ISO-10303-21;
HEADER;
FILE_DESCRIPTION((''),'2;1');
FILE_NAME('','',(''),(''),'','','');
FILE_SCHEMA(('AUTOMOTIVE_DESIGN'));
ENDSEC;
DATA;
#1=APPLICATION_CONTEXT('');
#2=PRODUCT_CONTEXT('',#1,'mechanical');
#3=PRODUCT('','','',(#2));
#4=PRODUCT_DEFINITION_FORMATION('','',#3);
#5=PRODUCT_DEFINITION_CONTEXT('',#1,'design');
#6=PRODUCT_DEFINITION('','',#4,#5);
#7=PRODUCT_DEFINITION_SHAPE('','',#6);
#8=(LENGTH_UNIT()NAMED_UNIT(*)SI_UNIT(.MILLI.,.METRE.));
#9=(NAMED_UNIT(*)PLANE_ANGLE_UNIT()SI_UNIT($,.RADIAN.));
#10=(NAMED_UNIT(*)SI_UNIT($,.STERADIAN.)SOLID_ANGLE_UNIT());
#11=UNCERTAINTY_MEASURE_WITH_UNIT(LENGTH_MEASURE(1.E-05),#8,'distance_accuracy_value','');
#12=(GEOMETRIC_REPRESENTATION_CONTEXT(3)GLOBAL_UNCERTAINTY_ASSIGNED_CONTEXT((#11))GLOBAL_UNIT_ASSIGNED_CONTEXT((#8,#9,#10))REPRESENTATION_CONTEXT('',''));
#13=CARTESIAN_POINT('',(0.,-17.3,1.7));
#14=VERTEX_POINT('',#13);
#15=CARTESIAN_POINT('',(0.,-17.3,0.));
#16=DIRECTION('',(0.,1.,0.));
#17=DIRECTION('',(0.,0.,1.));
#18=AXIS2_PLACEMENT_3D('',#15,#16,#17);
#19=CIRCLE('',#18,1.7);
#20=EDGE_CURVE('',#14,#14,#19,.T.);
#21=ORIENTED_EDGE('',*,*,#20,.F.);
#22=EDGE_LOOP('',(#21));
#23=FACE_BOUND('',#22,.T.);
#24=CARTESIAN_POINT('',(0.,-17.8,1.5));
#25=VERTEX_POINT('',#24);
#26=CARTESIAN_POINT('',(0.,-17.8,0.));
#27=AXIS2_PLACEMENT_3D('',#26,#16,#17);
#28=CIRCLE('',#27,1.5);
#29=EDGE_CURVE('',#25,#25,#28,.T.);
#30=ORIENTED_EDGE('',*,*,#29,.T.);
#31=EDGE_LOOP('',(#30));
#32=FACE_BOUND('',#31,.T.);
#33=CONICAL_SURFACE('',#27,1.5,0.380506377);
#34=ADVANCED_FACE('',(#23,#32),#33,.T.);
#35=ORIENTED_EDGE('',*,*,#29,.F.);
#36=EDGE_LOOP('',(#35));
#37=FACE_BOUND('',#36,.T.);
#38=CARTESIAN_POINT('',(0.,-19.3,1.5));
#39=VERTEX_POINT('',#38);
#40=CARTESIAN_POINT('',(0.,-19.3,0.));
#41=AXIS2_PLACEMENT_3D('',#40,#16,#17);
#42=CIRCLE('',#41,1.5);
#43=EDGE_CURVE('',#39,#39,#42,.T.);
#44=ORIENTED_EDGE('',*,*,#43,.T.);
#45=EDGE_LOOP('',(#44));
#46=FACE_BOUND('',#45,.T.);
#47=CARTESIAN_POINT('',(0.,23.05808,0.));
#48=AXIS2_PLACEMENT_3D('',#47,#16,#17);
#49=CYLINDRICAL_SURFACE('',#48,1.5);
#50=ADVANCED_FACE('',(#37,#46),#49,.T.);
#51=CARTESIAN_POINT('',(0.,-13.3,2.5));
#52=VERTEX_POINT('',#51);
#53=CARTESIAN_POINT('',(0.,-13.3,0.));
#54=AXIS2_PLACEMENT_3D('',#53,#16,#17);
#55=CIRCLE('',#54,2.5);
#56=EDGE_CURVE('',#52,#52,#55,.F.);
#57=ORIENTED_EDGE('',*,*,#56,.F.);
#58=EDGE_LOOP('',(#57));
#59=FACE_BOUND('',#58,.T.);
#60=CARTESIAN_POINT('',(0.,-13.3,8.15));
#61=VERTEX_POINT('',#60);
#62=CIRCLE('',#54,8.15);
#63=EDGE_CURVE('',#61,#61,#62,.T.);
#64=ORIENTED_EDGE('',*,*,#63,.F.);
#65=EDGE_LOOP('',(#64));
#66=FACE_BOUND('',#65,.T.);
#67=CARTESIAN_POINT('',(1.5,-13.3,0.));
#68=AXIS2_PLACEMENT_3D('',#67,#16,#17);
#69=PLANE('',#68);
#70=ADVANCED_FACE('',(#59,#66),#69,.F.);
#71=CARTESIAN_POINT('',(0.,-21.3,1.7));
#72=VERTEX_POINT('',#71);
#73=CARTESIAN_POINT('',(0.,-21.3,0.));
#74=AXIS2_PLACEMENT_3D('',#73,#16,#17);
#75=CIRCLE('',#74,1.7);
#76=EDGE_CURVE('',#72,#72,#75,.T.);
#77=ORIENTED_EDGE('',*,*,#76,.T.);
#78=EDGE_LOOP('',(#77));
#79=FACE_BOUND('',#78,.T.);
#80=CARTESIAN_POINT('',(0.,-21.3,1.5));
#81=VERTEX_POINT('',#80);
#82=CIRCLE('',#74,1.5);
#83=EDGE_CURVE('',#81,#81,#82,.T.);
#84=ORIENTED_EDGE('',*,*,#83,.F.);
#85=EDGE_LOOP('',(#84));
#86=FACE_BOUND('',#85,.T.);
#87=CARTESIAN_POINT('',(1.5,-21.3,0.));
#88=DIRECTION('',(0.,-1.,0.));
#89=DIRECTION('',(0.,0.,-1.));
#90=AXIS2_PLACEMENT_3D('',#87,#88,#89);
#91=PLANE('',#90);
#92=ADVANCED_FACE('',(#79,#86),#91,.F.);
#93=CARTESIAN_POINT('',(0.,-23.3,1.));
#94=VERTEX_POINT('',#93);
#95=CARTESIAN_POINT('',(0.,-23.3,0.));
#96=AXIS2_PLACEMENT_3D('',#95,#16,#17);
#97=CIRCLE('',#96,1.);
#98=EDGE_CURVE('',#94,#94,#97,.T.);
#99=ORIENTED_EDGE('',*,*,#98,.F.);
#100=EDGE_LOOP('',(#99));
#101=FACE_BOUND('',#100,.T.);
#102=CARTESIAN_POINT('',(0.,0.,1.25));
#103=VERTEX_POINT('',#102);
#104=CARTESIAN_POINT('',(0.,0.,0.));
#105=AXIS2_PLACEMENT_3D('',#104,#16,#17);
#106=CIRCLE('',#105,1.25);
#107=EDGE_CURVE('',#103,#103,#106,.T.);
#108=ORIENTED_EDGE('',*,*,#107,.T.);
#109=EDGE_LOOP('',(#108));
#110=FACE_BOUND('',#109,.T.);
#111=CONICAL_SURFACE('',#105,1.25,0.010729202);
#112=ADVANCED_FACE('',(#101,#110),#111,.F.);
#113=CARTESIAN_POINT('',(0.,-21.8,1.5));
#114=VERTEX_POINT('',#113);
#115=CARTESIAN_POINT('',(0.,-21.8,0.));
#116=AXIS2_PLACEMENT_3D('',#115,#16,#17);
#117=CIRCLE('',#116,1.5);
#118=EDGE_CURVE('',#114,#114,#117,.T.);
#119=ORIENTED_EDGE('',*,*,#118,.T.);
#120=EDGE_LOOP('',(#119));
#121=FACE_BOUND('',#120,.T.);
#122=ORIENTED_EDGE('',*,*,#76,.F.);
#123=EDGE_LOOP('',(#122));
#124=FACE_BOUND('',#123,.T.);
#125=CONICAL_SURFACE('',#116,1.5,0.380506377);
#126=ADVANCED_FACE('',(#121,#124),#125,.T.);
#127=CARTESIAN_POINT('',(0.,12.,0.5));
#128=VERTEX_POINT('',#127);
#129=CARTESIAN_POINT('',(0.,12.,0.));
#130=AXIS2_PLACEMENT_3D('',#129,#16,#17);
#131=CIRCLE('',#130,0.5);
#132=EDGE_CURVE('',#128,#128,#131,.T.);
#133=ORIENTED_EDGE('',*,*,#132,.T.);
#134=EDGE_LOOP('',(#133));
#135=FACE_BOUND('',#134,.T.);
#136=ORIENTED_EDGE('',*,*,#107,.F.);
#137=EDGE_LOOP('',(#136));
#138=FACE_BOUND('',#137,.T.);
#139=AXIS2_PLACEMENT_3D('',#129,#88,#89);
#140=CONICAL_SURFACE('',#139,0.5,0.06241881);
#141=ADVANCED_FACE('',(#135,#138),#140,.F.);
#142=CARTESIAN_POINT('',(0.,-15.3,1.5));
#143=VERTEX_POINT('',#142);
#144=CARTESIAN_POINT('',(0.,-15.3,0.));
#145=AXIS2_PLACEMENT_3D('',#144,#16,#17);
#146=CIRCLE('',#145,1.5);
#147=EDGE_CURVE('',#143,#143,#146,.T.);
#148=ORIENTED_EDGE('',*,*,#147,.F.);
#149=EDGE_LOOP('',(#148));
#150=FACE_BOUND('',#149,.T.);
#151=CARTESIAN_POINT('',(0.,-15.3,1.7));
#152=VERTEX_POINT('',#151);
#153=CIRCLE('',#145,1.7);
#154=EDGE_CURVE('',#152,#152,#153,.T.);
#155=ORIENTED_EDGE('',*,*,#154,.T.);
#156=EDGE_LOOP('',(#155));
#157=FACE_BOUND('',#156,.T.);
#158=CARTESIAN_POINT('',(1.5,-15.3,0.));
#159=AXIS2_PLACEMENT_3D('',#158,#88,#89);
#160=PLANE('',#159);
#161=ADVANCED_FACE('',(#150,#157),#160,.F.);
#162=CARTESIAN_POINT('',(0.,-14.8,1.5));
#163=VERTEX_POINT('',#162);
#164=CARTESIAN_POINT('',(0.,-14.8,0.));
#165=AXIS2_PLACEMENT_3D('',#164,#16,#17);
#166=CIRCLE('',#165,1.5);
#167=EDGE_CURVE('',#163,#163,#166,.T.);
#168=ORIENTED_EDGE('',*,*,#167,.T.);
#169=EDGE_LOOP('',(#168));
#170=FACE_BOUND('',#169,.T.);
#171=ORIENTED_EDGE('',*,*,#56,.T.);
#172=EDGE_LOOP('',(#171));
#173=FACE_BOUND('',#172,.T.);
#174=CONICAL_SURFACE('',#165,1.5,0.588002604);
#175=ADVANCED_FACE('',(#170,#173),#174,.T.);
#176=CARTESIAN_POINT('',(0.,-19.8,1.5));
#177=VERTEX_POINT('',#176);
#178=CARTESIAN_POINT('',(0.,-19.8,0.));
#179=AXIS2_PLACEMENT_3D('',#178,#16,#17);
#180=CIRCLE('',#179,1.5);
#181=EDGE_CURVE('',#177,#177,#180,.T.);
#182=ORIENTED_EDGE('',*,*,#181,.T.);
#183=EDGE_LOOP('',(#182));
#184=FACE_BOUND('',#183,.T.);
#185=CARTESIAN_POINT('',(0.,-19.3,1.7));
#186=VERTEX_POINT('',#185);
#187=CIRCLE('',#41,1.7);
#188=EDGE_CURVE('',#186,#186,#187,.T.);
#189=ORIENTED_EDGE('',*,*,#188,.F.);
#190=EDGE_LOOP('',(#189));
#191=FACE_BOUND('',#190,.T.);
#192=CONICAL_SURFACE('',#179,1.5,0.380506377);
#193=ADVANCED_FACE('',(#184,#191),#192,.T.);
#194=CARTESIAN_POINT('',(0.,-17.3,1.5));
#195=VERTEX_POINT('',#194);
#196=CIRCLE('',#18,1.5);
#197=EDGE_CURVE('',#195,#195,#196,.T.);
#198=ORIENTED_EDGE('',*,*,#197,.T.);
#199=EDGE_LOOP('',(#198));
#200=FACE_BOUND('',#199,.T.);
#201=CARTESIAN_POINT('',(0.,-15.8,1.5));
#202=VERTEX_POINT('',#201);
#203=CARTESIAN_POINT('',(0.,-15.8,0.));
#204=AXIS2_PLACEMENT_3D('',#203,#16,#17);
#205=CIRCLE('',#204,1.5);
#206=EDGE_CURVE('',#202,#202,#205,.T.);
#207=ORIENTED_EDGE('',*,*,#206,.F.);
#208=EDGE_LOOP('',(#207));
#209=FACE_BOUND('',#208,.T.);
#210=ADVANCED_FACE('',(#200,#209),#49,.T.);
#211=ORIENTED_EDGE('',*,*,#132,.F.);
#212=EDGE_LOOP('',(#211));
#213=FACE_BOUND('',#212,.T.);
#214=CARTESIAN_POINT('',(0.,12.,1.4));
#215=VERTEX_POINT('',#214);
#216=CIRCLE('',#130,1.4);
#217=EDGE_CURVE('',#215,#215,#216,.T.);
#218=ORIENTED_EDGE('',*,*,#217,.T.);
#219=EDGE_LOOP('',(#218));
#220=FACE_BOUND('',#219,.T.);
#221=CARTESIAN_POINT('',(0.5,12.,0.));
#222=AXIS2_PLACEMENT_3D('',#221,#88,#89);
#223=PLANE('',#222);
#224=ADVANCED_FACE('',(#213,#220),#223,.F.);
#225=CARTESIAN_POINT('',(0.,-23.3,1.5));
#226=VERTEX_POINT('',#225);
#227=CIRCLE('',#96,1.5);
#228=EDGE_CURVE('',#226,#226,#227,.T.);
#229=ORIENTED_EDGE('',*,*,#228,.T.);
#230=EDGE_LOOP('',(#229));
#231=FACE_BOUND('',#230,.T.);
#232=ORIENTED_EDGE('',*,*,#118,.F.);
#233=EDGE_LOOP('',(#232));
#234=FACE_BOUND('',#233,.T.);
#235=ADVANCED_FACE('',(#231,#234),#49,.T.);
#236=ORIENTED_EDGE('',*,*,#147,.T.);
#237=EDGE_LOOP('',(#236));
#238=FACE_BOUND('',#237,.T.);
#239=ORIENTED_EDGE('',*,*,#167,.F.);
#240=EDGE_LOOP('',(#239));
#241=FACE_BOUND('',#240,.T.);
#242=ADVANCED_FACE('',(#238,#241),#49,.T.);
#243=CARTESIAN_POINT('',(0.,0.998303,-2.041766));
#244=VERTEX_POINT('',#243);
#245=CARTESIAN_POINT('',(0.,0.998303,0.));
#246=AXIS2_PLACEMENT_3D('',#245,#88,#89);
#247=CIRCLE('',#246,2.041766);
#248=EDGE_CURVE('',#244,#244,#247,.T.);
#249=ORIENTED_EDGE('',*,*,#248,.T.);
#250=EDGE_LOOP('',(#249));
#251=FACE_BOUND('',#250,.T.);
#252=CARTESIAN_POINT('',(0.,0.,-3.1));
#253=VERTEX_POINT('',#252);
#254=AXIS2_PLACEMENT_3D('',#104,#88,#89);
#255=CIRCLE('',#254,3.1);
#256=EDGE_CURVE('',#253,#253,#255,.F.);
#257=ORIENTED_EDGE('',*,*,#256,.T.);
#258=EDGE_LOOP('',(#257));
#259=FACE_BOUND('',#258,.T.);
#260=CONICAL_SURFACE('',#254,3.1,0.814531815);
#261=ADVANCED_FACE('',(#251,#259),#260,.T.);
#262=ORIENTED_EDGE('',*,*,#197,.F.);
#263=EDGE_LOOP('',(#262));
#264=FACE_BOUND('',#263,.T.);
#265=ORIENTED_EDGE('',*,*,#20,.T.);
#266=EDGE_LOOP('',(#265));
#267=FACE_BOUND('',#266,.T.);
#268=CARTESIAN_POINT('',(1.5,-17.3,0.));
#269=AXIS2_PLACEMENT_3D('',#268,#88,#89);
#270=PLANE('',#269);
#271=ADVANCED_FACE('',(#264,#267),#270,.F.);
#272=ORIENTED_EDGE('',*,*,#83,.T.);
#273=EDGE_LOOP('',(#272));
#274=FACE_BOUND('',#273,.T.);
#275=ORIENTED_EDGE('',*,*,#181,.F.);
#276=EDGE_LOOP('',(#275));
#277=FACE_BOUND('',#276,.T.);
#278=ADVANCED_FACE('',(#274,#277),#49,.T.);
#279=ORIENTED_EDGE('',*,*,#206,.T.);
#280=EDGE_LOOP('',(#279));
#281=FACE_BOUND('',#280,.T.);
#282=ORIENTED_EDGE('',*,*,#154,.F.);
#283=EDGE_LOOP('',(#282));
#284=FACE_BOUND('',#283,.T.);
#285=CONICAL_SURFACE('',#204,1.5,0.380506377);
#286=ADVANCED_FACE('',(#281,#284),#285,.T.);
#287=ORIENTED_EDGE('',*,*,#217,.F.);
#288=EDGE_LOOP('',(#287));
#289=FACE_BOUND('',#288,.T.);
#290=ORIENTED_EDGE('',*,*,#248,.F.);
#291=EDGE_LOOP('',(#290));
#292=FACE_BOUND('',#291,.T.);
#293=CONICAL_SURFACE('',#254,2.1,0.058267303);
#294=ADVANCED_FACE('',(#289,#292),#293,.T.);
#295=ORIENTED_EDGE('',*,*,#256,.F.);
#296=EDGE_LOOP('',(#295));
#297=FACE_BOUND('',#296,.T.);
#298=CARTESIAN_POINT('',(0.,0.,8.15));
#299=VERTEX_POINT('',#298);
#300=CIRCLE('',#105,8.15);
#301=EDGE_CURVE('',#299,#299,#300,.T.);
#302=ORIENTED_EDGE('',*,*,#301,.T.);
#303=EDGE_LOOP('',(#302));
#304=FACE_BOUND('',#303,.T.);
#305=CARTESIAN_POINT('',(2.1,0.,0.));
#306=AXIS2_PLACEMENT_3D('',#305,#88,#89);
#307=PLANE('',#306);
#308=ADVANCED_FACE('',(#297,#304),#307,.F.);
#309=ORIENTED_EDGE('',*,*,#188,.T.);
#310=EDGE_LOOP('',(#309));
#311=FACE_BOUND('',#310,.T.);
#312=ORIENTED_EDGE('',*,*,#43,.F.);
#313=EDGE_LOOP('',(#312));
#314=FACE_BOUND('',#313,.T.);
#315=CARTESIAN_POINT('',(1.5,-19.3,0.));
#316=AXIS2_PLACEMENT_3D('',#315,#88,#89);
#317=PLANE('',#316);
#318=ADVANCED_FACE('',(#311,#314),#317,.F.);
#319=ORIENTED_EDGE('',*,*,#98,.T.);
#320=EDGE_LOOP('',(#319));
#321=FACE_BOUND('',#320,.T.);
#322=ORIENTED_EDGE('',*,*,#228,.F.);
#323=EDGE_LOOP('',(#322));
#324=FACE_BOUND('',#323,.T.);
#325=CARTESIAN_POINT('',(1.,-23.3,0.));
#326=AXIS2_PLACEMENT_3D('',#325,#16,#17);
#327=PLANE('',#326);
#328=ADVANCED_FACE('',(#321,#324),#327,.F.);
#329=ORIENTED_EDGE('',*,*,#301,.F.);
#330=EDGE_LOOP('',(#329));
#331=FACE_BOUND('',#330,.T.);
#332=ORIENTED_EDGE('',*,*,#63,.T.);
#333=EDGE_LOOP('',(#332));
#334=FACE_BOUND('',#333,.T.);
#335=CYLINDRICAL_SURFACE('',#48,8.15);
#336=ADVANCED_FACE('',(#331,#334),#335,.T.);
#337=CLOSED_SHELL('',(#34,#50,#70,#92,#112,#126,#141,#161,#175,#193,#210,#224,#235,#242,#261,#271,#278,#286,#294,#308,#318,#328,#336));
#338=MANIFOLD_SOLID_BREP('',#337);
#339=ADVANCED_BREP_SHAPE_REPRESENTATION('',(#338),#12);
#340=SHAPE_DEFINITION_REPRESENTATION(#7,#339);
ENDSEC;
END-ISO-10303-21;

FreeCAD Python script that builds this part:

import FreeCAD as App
import Part
import Sketcher
from FreeCAD import Vector
Q = App.Units.Quantity


def add_polygon(sketch, points):
    """Adds a closed chain of lines whose ends are joined by coincident constraints."""
    first, n = sketch.GeometryCount, len(points)
    for a, b in zip(points, points[1:] + points[:1]):
        sketch.addGeometry(Part.LineSegment(App.Vector(*a, 0), App.Vector(*b, 0)), False)
    for i in range(n):
        sketch.addConstraint(Sketcher.Constraint("Coincident", first + i, 2, first + (i + 1) % n, 1))

doc = App.newDocument("Part")
body = doc.addObject("PartDesign::Body", "Body")

sketch1 = body.newObject("Sketcher::SketchObject", "Sketch")
sketch1.AttachmentSupport = (doc.getObject("XY_Plane"), [""])
sketch1.MapMode = "FlatFace"
add_polygon(sketch1, [(8.15, 0), (2.1, 0), (1.4, 12), (0.5, 12), (1.25, 0), (1, -23.3), (1.5, -23.3), (1.5, -21.8), (1.7, -21.3), (1.5, -21.3), (1.5, -19.8), (1.7, -19.3), (1.5, -19.3), (1.5, -17.8), (1.7, -17.3), (1.5, -17.3), (1.5, -15.8), (1.7, -15.3), (1.5, -15.3), (1.5, -13.3), (8.15, -13.3)])
sketch1.addConstraint([
    Sketcher.Constraint("Horizontal", 0),
    Sketcher.Constraint("Horizontal", 2),
    Sketcher.Constraint("Horizontal", 5),
    Sketcher.Constraint("Vertical", 6),
    Sketcher.Constraint("Horizontal", 8),
    Sketcher.Constraint("Vertical", 9),
    Sketcher.Constraint("Horizontal", 11),
    Sketcher.Constraint("Vertical", 12),
    Sketcher.Constraint("Horizontal", 14),
    Sketcher.Constraint("Vertical", 15),
    Sketcher.Constraint("Horizontal", 17),
    Sketcher.Constraint("Vertical", 18),
    Sketcher.Constraint("Horizontal", 19),
    Sketcher.Constraint("Vertical", 20),
    Sketcher.Constraint("PointOnObject", 0, 2, -1),
    Sketcher.Constraint("PointOnObject", 3, 2, -1),
    Sketcher.Constraint("Parallel", 7, 10),
    Sketcher.Constraint("Parallel", 10, 13),
    Sketcher.Constraint("Parallel", 13, 16),
    Sketcher.Constraint("Vertical", 6, 2, 8, 2),
    Sketcher.Constraint("Vertical", 7, 2, 10, 2),
    Sketcher.Constraint("Vertical", 9, 2, 11, 2),
    Sketcher.Constraint("Vertical", 10, 2, 13, 2),
    Sketcher.Constraint("Vertical", 12, 2, 14, 2),
    Sketcher.Constraint("Vertical", 13, 2, 16, 2),
    Sketcher.Constraint("Vertical", 15, 2, 17, 2),
    Sketcher.Constraint("Equal", 6, 9),
    Sketcher.Constraint("Equal", 9, 12),
    Sketcher.Constraint("Equal", 12, 15),
    Sketcher.Constraint("DistanceY", 18, 1, 18, 2, Q("2 mm")),
    Sketcher.Constraint("DistanceX", 2, 2, 2, 1, Q("0.9 mm")),
    Sketcher.Constraint("DistanceX", 5, 1, 5, 2, Q("0.5 mm")),
    Sketcher.Constraint("DistanceX", 8, 2, 8, 1, Q("0.2 mm")),
    Sketcher.Constraint("DistanceY", 6, 1, 6, 2, Q("1.5 mm")),
    Sketcher.Constraint("DistanceY", 20, 1, 20, 2, Q("13.3 mm")),
    Sketcher.Constraint("DistanceY", -1, 1, 1, 2, Q("12 mm")),
    Sketcher.Constraint("DistanceX", -1, 1, 4, 2, Q("1 mm")),
    Sketcher.Constraint("DistanceX", 2, 2, 5, 2, Q("1 mm")),
    Sketcher.Constraint("DistanceY", 5, 2, 7, 2, Q("2 mm")),
    Sketcher.Constraint("DistanceX", 0, 2, 0, 1, Q("6.05 mm")),
    Sketcher.Constraint("DistanceX", 19, 1, 19, 2, Q("6.65 mm")),
    Sketcher.Constraint("DistanceX", 3, 2, 20, 2, Q("6.9 mm")),
])
revolution = body.newObject("PartDesign::Revolution", "Revolution")
revolution.Profile = sketch1
revolution.ReferenceAxis = (sketch1, ["V_Axis"])
revolution.Angle = 360

sketch2 = body.newObject("Sketcher::SketchObject", "Sketch001")
sketch2.AttachmentSupport = (doc.getObject("XY_Plane"), [""])
sketch2.MapMode = "FlatFace"
add_polygon(sketch2, [(1.5, -14.8), (2.5, -13.3), (1.5, -13.3)])
add_polygon(sketch2, [(2, 1), (2.1, 0), (3.1, 0)])
sketch2.addConstraint([
    Sketcher.Constraint("Horizontal", 1),
    Sketcher.Constraint("Vertical", 2),
    Sketcher.Constraint("Horizontal", 4),
    Sketcher.Constraint("PointOnObject", 3, 2, -1),
    Sketcher.Constraint("Equal", 1, 4),
    Sketcher.Constraint("DistanceX", 1, 2, 1, 1, Q("1 mm")),
    Sketcher.Constraint("Distance", 3, Q("1 mm")),
    Sketcher.Constraint("DistanceY", 2, 2, 2, 1, Q("1.5 mm")),
    Sketcher.Constraint("DistanceX", -1, 1, 0, 2, Q("2.5 mm")),
    Sketcher.Constraint("DistanceY", 0, 2, -1, 1, Q("13.3 mm")),
    Sketcher.Constraint("DistanceX", -1, 1, 3, 2, Q("2.1 mm")),
    Sketcher.Constraint("Distance", 5, Q("1.454809 mm")),
])
revolution2 = body.newObject("PartDesign::Revolution", "Revolution001")
revolution2.Profile = sketch2
revolution2.ReferenceAxis = (sketch2, ["V_Axis"])
revolution2.Angle = 360

doc.recompute()
